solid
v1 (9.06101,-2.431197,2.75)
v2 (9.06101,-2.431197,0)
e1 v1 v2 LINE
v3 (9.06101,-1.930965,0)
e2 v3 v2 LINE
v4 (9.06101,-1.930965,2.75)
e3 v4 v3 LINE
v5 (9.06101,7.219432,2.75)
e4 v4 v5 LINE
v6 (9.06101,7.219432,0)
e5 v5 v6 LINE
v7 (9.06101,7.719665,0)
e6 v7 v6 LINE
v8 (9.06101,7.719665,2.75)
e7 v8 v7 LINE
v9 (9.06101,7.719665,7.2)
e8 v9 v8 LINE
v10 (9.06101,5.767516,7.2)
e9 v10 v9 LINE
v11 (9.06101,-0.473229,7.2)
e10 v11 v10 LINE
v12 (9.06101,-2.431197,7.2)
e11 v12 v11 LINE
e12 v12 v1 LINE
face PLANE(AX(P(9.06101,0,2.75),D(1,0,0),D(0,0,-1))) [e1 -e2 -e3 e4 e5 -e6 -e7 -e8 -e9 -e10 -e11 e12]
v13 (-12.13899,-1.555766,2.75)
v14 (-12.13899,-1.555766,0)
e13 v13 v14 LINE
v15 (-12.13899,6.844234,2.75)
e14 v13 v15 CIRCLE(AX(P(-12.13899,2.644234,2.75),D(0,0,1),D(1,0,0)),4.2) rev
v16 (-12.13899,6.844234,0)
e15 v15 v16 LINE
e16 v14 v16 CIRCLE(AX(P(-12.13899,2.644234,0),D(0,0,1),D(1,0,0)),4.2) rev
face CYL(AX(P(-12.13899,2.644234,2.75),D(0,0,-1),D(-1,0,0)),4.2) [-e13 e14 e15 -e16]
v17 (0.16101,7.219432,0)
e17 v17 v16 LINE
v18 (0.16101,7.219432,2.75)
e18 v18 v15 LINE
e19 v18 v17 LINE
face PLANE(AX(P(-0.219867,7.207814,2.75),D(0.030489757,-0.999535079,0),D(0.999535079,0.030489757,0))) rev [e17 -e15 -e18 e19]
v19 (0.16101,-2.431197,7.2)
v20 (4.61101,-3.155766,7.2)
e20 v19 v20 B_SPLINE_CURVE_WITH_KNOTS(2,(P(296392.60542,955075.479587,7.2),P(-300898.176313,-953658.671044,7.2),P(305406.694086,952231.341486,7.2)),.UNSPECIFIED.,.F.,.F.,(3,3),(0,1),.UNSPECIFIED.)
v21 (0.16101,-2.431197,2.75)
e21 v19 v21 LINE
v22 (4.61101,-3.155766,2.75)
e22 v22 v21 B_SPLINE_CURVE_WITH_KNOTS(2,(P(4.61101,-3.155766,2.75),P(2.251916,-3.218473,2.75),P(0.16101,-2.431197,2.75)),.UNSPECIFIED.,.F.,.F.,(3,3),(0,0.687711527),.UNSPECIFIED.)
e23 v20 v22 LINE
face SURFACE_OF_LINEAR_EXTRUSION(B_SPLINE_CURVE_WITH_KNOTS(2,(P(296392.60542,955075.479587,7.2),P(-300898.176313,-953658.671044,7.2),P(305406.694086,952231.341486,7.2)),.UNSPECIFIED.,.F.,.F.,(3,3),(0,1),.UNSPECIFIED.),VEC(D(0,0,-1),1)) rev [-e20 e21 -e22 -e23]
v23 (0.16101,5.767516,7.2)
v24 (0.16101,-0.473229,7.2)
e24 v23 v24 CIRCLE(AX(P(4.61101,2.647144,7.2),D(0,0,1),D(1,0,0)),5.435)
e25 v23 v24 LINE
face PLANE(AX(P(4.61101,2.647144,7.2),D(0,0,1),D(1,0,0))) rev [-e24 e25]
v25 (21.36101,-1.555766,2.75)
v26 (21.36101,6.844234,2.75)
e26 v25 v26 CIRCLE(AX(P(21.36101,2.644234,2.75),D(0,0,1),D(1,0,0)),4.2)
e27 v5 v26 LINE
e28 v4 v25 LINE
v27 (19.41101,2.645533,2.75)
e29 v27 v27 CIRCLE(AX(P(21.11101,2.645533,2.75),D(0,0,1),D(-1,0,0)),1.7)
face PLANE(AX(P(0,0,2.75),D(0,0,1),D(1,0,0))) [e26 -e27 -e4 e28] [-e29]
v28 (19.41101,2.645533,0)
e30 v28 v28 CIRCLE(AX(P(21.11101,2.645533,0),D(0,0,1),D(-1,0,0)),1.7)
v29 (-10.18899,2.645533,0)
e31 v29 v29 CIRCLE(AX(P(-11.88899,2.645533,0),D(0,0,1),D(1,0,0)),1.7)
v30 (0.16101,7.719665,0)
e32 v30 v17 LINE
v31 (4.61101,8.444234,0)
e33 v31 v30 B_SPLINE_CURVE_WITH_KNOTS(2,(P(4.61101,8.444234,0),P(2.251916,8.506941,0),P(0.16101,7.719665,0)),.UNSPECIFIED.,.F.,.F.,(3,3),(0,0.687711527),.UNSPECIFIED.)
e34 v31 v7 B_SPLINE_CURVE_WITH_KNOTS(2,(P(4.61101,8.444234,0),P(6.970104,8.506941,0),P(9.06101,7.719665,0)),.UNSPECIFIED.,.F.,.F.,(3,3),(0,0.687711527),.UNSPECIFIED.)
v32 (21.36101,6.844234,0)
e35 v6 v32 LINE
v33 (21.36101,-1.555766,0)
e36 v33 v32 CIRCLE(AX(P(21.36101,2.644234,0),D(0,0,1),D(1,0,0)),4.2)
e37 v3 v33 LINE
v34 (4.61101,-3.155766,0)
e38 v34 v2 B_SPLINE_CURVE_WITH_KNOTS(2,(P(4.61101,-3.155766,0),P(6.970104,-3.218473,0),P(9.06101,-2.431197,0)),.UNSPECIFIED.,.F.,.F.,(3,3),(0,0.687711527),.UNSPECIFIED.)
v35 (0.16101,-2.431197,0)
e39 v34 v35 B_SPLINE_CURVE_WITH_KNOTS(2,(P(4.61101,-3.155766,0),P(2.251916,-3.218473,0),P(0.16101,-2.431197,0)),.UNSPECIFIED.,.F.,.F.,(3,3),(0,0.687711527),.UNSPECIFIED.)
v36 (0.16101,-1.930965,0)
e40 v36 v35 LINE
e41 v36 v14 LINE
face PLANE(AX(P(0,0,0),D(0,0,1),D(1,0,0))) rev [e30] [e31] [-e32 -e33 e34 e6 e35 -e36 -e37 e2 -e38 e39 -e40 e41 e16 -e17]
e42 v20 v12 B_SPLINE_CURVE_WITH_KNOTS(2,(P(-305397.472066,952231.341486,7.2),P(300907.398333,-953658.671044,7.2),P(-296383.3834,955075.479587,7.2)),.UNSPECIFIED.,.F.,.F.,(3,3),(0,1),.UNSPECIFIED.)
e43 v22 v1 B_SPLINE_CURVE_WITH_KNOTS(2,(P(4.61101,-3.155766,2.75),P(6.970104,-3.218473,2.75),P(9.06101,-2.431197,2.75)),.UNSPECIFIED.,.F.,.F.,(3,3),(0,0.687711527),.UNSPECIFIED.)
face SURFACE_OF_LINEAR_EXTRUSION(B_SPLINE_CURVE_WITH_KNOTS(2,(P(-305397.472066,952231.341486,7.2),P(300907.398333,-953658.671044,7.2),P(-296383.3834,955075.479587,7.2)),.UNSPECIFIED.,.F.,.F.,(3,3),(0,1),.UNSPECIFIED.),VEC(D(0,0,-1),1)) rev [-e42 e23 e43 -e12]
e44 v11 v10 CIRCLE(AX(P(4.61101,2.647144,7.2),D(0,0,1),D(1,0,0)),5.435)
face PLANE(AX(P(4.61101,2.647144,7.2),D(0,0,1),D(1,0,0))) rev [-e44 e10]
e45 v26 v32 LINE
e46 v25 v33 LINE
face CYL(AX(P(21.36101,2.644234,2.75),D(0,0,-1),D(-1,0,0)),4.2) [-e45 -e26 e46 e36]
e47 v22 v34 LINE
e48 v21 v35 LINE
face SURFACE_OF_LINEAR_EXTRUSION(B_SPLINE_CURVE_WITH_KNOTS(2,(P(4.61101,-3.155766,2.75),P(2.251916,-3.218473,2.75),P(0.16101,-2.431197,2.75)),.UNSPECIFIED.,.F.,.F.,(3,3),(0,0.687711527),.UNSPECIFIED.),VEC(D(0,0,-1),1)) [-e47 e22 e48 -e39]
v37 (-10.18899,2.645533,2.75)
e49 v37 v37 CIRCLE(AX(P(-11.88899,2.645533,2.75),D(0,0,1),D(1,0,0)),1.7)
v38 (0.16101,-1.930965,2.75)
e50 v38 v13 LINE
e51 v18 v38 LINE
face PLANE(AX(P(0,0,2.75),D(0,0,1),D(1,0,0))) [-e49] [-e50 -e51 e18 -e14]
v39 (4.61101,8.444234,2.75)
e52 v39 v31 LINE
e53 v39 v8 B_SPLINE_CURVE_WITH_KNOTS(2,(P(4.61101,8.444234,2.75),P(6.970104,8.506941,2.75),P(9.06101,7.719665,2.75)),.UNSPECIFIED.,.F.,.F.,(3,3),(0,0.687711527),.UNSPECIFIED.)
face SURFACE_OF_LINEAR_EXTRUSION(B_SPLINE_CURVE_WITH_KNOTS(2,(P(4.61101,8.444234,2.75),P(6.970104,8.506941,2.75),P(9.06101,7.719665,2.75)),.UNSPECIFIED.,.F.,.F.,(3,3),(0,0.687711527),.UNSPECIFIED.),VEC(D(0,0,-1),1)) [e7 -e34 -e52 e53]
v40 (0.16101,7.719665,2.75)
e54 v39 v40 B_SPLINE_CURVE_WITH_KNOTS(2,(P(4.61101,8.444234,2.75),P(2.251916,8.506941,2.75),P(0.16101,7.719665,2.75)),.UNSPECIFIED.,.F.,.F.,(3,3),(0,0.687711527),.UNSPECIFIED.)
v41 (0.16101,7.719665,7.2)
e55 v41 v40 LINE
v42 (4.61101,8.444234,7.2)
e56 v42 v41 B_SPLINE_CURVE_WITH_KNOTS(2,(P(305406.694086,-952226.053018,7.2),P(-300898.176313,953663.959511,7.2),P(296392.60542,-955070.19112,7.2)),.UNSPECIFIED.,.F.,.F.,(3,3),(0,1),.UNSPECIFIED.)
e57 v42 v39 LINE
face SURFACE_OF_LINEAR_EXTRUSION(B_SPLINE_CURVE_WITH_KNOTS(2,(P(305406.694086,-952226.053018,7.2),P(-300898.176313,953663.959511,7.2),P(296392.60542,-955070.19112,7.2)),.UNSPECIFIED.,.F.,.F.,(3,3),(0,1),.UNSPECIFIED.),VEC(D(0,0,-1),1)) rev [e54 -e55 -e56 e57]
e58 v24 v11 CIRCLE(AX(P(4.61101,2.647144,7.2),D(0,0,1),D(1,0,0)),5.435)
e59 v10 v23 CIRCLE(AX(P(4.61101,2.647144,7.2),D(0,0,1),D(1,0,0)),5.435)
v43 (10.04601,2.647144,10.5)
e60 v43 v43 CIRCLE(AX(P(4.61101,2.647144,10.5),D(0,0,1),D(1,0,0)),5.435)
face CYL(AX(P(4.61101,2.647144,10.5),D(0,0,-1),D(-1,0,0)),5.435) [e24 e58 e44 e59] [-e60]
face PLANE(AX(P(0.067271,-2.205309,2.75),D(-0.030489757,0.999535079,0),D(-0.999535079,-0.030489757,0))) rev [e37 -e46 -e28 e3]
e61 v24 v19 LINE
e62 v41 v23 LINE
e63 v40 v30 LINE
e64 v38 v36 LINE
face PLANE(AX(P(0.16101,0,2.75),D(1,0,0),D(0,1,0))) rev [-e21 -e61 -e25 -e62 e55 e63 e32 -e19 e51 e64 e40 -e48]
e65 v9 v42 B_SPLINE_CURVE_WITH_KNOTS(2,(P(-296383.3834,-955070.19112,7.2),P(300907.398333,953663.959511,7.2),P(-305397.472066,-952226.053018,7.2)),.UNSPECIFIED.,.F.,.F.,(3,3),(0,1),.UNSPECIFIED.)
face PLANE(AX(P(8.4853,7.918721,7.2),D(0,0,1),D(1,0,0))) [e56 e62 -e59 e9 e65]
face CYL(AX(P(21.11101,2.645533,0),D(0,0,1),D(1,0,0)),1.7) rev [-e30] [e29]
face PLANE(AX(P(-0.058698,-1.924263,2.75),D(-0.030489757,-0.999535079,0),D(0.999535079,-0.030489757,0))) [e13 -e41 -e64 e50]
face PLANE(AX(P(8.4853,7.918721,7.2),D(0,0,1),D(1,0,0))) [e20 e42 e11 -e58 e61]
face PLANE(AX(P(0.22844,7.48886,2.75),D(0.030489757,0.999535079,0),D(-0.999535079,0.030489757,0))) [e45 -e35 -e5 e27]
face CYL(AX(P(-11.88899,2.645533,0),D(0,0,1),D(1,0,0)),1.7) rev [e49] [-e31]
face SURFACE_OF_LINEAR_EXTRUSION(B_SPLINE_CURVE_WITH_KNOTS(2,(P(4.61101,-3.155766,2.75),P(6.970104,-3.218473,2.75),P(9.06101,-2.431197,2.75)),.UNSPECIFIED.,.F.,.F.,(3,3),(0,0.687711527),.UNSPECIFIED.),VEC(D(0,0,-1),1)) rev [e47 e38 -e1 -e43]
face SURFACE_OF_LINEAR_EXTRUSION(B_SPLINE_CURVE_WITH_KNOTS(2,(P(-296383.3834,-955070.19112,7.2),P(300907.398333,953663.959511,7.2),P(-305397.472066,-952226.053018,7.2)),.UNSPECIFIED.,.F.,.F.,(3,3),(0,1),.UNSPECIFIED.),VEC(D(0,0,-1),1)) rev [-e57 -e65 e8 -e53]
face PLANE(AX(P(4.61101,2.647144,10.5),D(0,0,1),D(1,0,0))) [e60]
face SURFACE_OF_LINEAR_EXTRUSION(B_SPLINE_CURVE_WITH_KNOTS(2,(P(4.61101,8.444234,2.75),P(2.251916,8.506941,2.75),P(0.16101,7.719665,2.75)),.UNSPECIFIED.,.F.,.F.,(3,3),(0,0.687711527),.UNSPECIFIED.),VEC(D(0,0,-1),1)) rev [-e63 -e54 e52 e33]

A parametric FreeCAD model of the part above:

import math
import FreeCAD as App
import Part
import Sketcher
from FreeCAD import Vector
Q = App.Units.Quantity

doc = App.newDocument("Part")
body = doc.addObject("PartDesign::Body", "Body")

# Sketch on XY plane
sketch1 = body.newObject("Sketcher::SketchObject", "Sketch")
sketch1.AttachmentSupport = (doc.getObject("XY_Plane"), [""])
sketch1.MapMode = "FlatFace"
sketch1.addGeometry(Part.BSplineCurve([Vector(4.61101, 8.444234, 0), Vector(6.970104, 8.506941, 0), Vector(9.06101, 7.719665, 0)], [3, 3], [0, 0.687711527], False, 2, [1, 1, 1], False), False)
sketch1.addGeometry(Part.BSplineCurve([Vector(4.61101, 8.444234, 0), Vector(2.251916, 8.506941, 0), Vector(0.16101, 7.719665, 0)], [3, 3], [0, 0.687711527], False, 2, [1, 1, 1], False), False)
sketch1.addGeometry(Part.LineSegment(Vector(0.16101, 7.719665, 0), Vector(0.16101, 7.219432, 0)), False)
sketch1.addGeometry(Part.LineSegment(Vector(0.16101, 7.219432, 0), Vector(-12.13899, 6.844234, 0)), False)
sketch1.addGeometry(Part.ArcOfCircle(Part.Circle(Vector(-12.13899, 2.644234, 0), Vector(0, 0, 1), 4.2), math.radians(90), math.radians(270)), False)
sketch1.addGeometry(Part.LineSegment(Vector(-12.13899, -1.555766, 0), Vector(0.16101, -1.930965, 0)), False)
sketch1.addGeometry(Part.LineSegment(Vector(0.16101, -1.930965, 0), Vector(0.16101, -2.431197, 0)), False)
sketch1.addGeometry(Part.BSplineCurve([Vector(4.61101, -3.155766, 0), Vector(2.251916, -3.218473, 0), Vector(0.16101, -2.431197, 0)], [3, 3], [0, 0.687711527], False, 2, [1, 1, 1], False), False)
sketch1.addGeometry(Part.BSplineCurve([Vector(4.61101, -3.155766, 0), Vector(6.970104, -3.218473, 0), Vector(9.06101, -2.431197, 0)], [3, 3], [0, 0.687711527], False, 2, [1, 1, 1], False), False)
sketch1.addGeometry(Part.LineSegment(Vector(9.06101, -2.431197, 0), Vector(9.06101, -1.930965, 0)), False)
sketch1.addGeometry(Part.LineSegment(Vector(9.06101, -1.930965, 0), Vector(21.36101, -1.555766, 0)), False)
sketch1.addGeometry(Part.ArcOfCircle(Part.Circle(Vector(21.36101, 2.644234, 0), Vector(0, 0, 1), 4.2), math.radians(-90), math.radians(90)), False)
sketch1.addGeometry(Part.LineSegment(Vector(21.36101, 6.844234, 0), Vector(9.06101, 7.219432, 0)), False)
sketch1.addGeometry(Part.LineSegment(Vector(9.06101, 7.219432, 0), Vector(9.06101, 7.719665, 0)), False)
sketch1.addConstraint(Sketcher.Constraint("Block", 0))
sketch1.addConstraint(Sketcher.Constraint("Block", 1))
sketch1.addConstraint(Sketcher.Constraint("Block", 7))
sketch1.addConstraint(Sketcher.Constraint("Block", 8))
sketch1.addConstraint(Sketcher.Constraint("Coincident", 1, 2, 2, 1))
sketch1.addConstraint(Sketcher.Constraint("Coincident", 2, 2, 3, 1))
sketch1.addConstraint(Sketcher.Constraint("Coincident", 3, 2, 4, 1))
sketch1.addConstraint(Sketcher.Constraint("Coincident", 4, 2, 5, 1))
sketch1.addConstraint(Sketcher.Constraint("Coincident", 5, 2, 6, 1))
sketch1.addConstraint(Sketcher.Constraint("Coincident", 6, 2, 7, 2))
sketch1.addConstraint(Sketcher.Constraint("Coincident", 8, 2, 9, 1))
sketch1.addConstraint(Sketcher.Constraint("Coincident", 9, 2, 10, 1))
sketch1.addConstraint(Sketcher.Constraint("Coincident", 10, 2, 11, 1))
sketch1.addConstraint(Sketcher.Constraint("Coincident", 11, 2, 12, 1))
sketch1.addConstraint(Sketcher.Constraint("Coincident", 12, 2, 13, 1))
sketch1.addConstraint(Sketcher.Constraint("Coincident", 13, 2, 0, 2))
sketch1.addConstraint(Sketcher.Constraint("Vertical", 2))
sketch1.addConstraint(Sketcher.Constraint("Vertical", 6))
sketch1.addConstraint(Sketcher.Constraint("Vertical", 9))
sketch1.addConstraint(Sketcher.Constraint("Vertical", 13))
sketch1.addConstraint(Sketcher.Constraint("Radius", 4, Q("4.2 mm")))
sketch1.addConstraint(Sketcher.Constraint("Radius", 11, Q("4.2 mm")))
sketch1.addConstraint(Sketcher.Constraint("DistanceX", 4, 3, 11, 3, Q("33.5 mm")))
sketch1.addConstraint(Sketcher.Constraint("DistanceX", 4, 3, 2, 2, Q("12.3 mm")))
sketch1.addConstraint(Sketcher.Constraint("DistanceX", 3, 2, 2, 2, Q("12.3 mm")))
sketch1.addConstraint(Sketcher.Constraint("DistanceY", 11, 3, 3, 2, Q("4.2 mm")))
sketch1.addConstraint(Sketcher.Constraint("DistanceX", 4, 2, 2, 2, Q("12.3 mm")))
sketch1.addConstraint(Sketcher.Constraint("DistanceX", 9, 2, 10, 2, Q("12.3 mm")))
sketch1.addConstraint(Sketcher.Constraint("DistanceX", 9, 2, 11, 2, Q("12.3 mm")))
sketch1.addConstraint(Sketcher.Constraint("DistanceY", 4, 3, 2, 2, Q("4.575198 mm")))
sketch1.addConstraint(Sketcher.Constraint("DistanceY", 5, 2, 4, 2, Q("0.375198 mm")))
sketch1.addConstraint(Sketcher.Constraint("DistanceY", 9, 2, 11, 3, Q("4.575198 mm")))
sketch1.addConstraint(Sketcher.Constraint("DistanceY", 11, 2, 12, 2, Q("0.375198 mm")))
sketch1.addConstraint(Sketcher.Constraint("DistanceY", 2, 2, 2, 1, Q("0.500233 mm")))
pad1 = body.newObject("PartDesign::Pad", "Pad")
pad1.Profile = sketch1
pad1.Length = 2.75

# Sketch on XY plane
sketch2 = body.newObject("Sketcher::SketchObject", "Sketch001")
sketch2.AttachmentSupport = (doc.getObject("XY_Plane"), [""])
sketch2.MapMode = "FlatFace"
sketch2.AttachmentOffset = App.Placement(Vector(0, 0, 2.75), App.Rotation())
sketch2.addGeometry(Part.Circle(Vector(-11.88899, 2.645533, 0), Vector(0, 0, 1), 1.7), False)
sketch2.addGeometry(Part.Circle(Vector(21.11101, 2.645533, 0), Vector(0, 0, 1), 1.7), False)
sketch2.addConstraint(Sketcher.Constraint("Equal", 0, 1))
sketch2.addConstraint(Sketcher.Constraint("Horizontal", 0, 3, 1, 3))
sketch2.addConstraint(Sketcher.Constraint("Diameter", 0, Q("3.4 mm")))
sketch2.addConstraint(Sketcher.Constraint("DistanceX", 0, 3, 1, 3, Q("33 mm")))
sketch2.addConstraint(Sketcher.Constraint("DistanceX", 0, 3, -1, 1, Q("11.88899 mm")))
sketch2.addConstraint(Sketcher.Constraint("DistanceY", -1, 1, 0, 3, Q("2.645533 mm")))
pocket1 = body.newObject("PartDesign::Pocket", "Pocket")
pocket1.Profile = sketch2
pocket1.Length = 2.75

# Sketch on XY plane
sketch3 = body.newObject("Sketcher::SketchObject", "Sketch002")
sketch3.AttachmentSupport = (doc.getObject("XY_Plane"), [""])
sketch3.MapMode = "FlatFace"
sketch3.AttachmentOffset = App.Placement(Vector(0, 0, 2.75), App.Rotation())
sketch3.addGeometry(Part.LineSegment(Vector(9.06101, -2.431197, 0), Vector(9.06101, 7.719665, 0)), False)
sketch3.addGeometry(Part.BSplineCurve([Vector(4.61101, 8.444234, 0), Vector(6.970104, 8.506941, 0), Vector(9.06101, 7.719665, 0)], [3, 3], [0, 1], False, 2, [1, 1, 1], False), False)
sketch3.addGeometry(Part.BSplineCurve([Vector(4.61101, 8.444234, 0), Vector(2.251916, 8.506941, 0), Vector(0.16101, 7.719665, 0)], [3, 3], [0, 1], False, 2, [1, 1, 1], False), False)
sketch3.addGeometry(Part.LineSegment(Vector(0.16101, 7.719665, 0), Vector(0.16101, -2.431197, 0)), False)
sketch3.addGeometry(Part.BSplineCurve([Vector(4.61101, -3.155766, 0), Vector(2.251916, -3.218473, 0), Vector(0.16101, -2.431197, 0)], [3, 3], [0, 1], False, 2, [1, 1, 1], False), False)
sketch3.addGeometry(Part.BSplineCurve([Vector(4.61101, -3.155766, 0), Vector(6.970104, -3.218473, 0), Vector(9.06101, -2.431197, 0)], [3, 3], [0, 1], False, 2, [1, 1, 1], False), False)
sketch3.addConstraint(Sketcher.Constraint("Block", 1))
sketch3.addConstraint(Sketcher.Constraint("Block", 2))
sketch3.addConstraint(Sketcher.Constraint("Block", 4))
sketch3.addConstraint(Sketcher.Constraint("Block", 5))
sketch3.addConstraint(Sketcher.Constraint("Coincident", 0, 2, 1, 2))
sketch3.addConstraint(Sketcher.Constraint("Coincident", 2, 2, 3, 1))
sketch3.addConstraint(Sketcher.Constraint("Coincident", 3, 2, 4, 2))
sketch3.addConstraint(Sketcher.Constraint("Coincident", 5, 2, 0, 1))
pad2 = body.newObject("PartDesign::Pad", "Pad001")
pad2.Profile = sketch3
pad2.Length = 4.45

# Sketch on XY plane
sketch4 = body.newObject("Sketcher::SketchObject", "Sketch003")
sketch4.AttachmentSupport = (doc.getObject("XY_Plane"), [""])
sketch4.MapMode = "FlatFace"
sketch4.AttachmentOffset = App.Placement(Vector(0, 0, 7.2), App.Rotation())
sketch4.addGeometry(Part.Circle(Vector(4.61101, 2.647144, 0), Vector(0, 0, 1), 5.435), False)
sketch4.addConstraint(Sketcher.Constraint("Diameter", 0, Q("10.87 mm")))
sketch4.addConstraint(Sketcher.Constraint("DistanceX", -1, 1, 0, 3, Q("4.61101 mm")))
sketch4.addConstraint(Sketcher.Constraint("DistanceY", -1, 1, 0, 3, Q("2.647144 mm")))
pad3 = body.newObject("PartDesign::Pad", "Pad002")
pad3.Profile = sketch4
pad3.Length = 3.3

doc.recompute()
